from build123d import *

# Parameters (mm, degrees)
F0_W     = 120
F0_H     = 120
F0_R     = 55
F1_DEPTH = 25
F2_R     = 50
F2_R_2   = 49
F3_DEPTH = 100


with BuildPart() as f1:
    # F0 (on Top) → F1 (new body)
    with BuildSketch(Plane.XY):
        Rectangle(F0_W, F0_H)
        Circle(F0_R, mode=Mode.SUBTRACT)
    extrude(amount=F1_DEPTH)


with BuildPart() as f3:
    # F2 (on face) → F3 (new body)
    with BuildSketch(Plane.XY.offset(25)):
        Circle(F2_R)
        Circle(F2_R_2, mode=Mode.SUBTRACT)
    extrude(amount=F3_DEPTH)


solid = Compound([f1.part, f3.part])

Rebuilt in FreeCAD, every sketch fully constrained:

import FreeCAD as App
import Part
import Sketcher

V = App.Vector


def add_polygon(sketch, points):
    """Adds a closed chain of lines whose ends are joined by coincident constraints."""
    first, n = sketch.GeometryCount, len(points)
    for a, b in zip(points, points[1:] + points[:1]):
        sketch.addGeometry(Part.LineSegment(App.Vector(*a, 0), App.Vector(*b, 0)), False)
    for i in range(n):
        sketch.addConstraint(Sketcher.Constraint("Coincident", first + i, 2, first + (i + 1) % n, 1))

doc = App.newDocument("Part")
params = doc.addObject("Spreadsheet::Sheet", "Params")
for row, (alias, value) in enumerate([
    ("sketch1_diameter", "110 mm"),
    ("sketch1_width", "120 mm"),
    ("pad1_length", "25 mm"),
    ("sketch2_diameter", "100 mm"),
    ("sketch2_diameter2", "98 mm"),
    ("pad2_length", "100 mm"),
], start=1):
    params.set(f"A{row}", alias)
    params.set(f"B{row}", "=" + value)
    params.setAlias(f"B{row}", alias)

body = doc.addObject("PartDesign::Body", "Body")

# Sketch on XY plane
sketch1 = doc.addObject("Sketcher::SketchObject", "Sketch")
body.addObject(sketch1)
sketch1.AttachmentSupport = (doc.XY_Plane, [""])
sketch1.MapMode = "FlatFace"
add_polygon(sketch1, [(-60, 60), (-60, -60), (60, -60), (60, 60)])  # lines 0-3
sketch1.addGeometry(Part.Circle(V(0, 0, 0), V(0, 0, 1), 55), False)  # 4
sketch1.addConstraint(Sketcher.Constraint("Vertical", 0))
sketch1.addConstraint(Sketcher.Constraint("Horizontal", 1))
sketch1.addConstraint(Sketcher.Constraint("Vertical", 2))
sketch1.addConstraint(Sketcher.Constraint("Horizontal", 3))
sketch1.addConstraint(Sketcher.Constraint("Coincident", 4, 3, -1, 1))
sketch1.addConstraint(Sketcher.Constraint("Symmetric", 0, 2, 2, 2, -1, 1))
sketch1.addConstraint(Sketcher.Constraint("Equal", 3, 0))
sketch1.addConstraint(Sketcher.Constraint("Diameter", 4, 110.0))
sketch1.addConstraint(Sketcher.Constraint("DistanceX", 1, 1, 1, 2, 120.0))
sketch1.setExpression("Constraints[11]", "Params.sketch1_diameter")
sketch1.setExpression("Constraints[12]", "Params.sketch1_width")
pad1 = doc.addObject("PartDesign::Pad", "Pad")
body.addObject(pad1)
pad1.Profile = sketch1
pad1.setExpression("Length", "Params.pad1_length")
body2 = doc.addObject("PartDesign::Body", "Body001")

# Sketch on XY plane
sketch2 = doc.addObject("Sketcher::SketchObject", "Sketch001")
body2.addObject(sketch2)
sketch2.AttachmentSupport = (doc.getObject("XY_Plane001"), [""])
sketch2.MapMode = "FlatFace"
sketch2.AttachmentOffset = App.Placement(V(0, 0, 25), App.Rotation())
sketch2.addGeometry(Part.Circle(V(0, 0, 0), V(0, 0, 1), 50), False)
sketch2.addGeometry(Part.Circle(V(0, 0, 0), V(0, 0, 1), 49), False)
sketch2.addConstraint(Sketcher.Constraint("Coincident", 0, 3, -1, 1))
sketch2.addConstraint(Sketcher.Constraint("Coincident", 1, 3, -1, 1))
sketch2.addConstraint(Sketcher.Constraint("Diameter", 0, 100.0))
sketch2.addConstraint(Sketcher.Constraint("Diameter", 1, 98.0))
sketch2.setExpression("Constraints[2]", "Params.sketch2_diameter")
sketch2.setExpression("Constraints[3]", "Params.sketch2_diameter2")
pad2 = doc.addObject("PartDesign::Pad", "Pad001")
body2.addObject(pad2)
pad2.Profile = sketch2
pad2.setExpression("Length", "Params.pad2_length")

doc.recompute()
